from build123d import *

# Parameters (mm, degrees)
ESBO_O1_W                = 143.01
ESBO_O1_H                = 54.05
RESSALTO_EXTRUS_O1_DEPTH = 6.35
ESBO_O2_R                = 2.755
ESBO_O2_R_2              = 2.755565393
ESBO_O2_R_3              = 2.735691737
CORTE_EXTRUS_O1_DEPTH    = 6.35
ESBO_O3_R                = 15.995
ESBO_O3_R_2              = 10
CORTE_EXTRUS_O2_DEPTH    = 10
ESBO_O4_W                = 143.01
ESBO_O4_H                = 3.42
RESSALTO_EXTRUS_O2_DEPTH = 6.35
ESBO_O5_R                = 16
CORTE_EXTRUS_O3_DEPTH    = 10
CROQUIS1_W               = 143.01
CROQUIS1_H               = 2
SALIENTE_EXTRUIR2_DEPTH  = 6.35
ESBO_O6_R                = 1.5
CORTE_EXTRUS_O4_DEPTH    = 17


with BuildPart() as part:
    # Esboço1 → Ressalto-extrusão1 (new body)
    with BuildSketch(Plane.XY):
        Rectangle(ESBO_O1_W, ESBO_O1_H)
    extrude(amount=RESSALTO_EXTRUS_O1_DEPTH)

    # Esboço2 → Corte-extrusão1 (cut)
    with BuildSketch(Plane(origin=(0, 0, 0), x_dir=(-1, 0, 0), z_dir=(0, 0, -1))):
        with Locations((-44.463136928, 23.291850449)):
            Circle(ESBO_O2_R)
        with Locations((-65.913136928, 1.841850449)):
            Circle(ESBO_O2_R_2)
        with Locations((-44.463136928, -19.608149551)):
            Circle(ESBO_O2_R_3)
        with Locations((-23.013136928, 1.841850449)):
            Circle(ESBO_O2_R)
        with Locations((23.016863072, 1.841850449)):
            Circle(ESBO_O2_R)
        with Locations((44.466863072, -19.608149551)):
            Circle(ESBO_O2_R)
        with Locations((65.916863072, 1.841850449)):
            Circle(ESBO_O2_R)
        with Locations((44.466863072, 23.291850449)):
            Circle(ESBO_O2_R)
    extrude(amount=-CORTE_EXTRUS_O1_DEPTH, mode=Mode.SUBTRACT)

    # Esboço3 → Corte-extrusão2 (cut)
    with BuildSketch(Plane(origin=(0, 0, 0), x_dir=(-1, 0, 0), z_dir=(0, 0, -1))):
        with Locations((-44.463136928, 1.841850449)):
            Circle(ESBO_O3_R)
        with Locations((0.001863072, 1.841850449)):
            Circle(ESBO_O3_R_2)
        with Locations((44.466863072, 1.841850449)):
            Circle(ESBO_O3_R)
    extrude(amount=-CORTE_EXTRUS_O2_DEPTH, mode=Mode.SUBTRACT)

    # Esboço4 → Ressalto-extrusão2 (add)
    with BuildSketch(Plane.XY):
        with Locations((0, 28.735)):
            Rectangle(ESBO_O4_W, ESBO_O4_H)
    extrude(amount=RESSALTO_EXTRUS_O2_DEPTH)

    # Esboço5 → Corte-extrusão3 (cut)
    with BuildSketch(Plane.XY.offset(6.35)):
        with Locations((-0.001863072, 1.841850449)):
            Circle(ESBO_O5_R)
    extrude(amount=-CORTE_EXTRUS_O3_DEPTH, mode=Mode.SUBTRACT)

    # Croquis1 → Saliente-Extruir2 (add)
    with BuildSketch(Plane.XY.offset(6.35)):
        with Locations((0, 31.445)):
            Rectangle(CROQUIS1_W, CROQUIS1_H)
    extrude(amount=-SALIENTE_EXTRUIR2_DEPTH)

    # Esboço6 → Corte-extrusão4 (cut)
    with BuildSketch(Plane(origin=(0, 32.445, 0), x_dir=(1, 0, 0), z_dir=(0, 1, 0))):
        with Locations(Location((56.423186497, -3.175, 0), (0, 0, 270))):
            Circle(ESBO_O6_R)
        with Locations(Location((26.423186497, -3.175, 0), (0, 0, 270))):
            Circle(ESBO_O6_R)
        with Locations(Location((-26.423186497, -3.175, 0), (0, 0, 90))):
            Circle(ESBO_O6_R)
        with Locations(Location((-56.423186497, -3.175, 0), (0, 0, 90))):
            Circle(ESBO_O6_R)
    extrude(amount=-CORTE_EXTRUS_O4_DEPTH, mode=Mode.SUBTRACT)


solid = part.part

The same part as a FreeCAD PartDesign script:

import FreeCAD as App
import Part
import Sketcher
Q = App.Units.Quantity

doc = App.newDocument("Part")
body = doc.addObject("PartDesign::Body", "Body")

# Sketch on XY plane
sketch1 = doc.addObject("Sketcher::SketchObject", "Sketch")
body.addObject(sketch1)
sketch1.AttachmentSupport = (doc.XY_Plane, [""])
sketch1.MapMode = "FlatFace"
sketch1.addGeometry(Part.LineSegment(App.Vector(-72, 27, 0), App.Vector(-72, -27, 0)), False)
sketch1.addGeometry(Part.LineSegment(App.Vector(-72, -27, 0), App.Vector(72, -27, 0)), False)
sketch1.addGeometry(Part.LineSegment(App.Vector(72, -27, 0), App.Vector(72, 27, 0)), False)
sketch1.addGeometry(Part.LineSegment(App.Vector(72, 27, 0), App.Vector(-72, 27, 0)), False)
sketch1.addConstraint(Sketcher.Constraint("Coincident", 0, 2, 1, 1))
sketch1.addConstraint(Sketcher.Constraint("Coincident", 1, 2, 2, 1))
sketch1.addConstraint(Sketcher.Constraint("Coincident", 2, 2, 3, 1))
sketch1.addConstraint(Sketcher.Constraint("Coincident", 3, 2, 0, 1))
sketch1.addConstraint(Sketcher.Constraint("Vertical", 0))
sketch1.addConstraint(Sketcher.Constraint("Horizontal", 1))
sketch1.addConstraint(Sketcher.Constraint("Vertical", 2))
sketch1.addConstraint(Sketcher.Constraint("Horizontal", 3))
sketch1.addConstraint(Sketcher.Constraint("Symmetric", 0, 2, 2, 2, -1, 1))
sketch1.addConstraint(Sketcher.Constraint("DistanceX", 1, 1, 1, 2, Q("143.01 mm")))
sketch1.addConstraint(Sketcher.Constraint("DistanceY", 0, 2, 0, 1, Q("54.05 mm")))
pad1 = doc.addObject("PartDesign::Pad", "Pad")
body.addObject(pad1)
pad1.Profile = sketch1
pad1.Length = 6.35

# Sketch on XY plane
sketch2 = doc.addObject("Sketcher::SketchObject", "Sketch001")
body.addObject(sketch2)
sketch2.AttachmentSupport = (doc.XY_Plane, [""])
sketch2.MapMode = "FlatFace"
sketch2.addGeometry(Part.Circle(App.Vector(44.5, 23.3, 0), App.Vector(0, 0, 1), 2.8), False)
sketch2.addGeometry(Part.Circle(App.Vector(65.9, 1.8, 0), App.Vector(0, 0, 1), 2.8), False)
sketch2.addGeometry(Part.Circle(App.Vector(44.5, -19.6, 0), App.Vector(0, 0, 1), 2.7), False)
sketch2.addGeometry(Part.Circle(App.Vector(23, 1.8, 0), App.Vector(0, 0, 1), 2.8), False)
sketch2.addGeometry(Part.Circle(App.Vector(-23, 1.8, 0), App.Vector(0, 0, 1), 2.8), False)
sketch2.addGeometry(Part.Circle(App.Vector(-44.5, -19.6, 0), App.Vector(0, 0, 1), 2.8), False)
sketch2.addGeometry(Part.Circle(App.Vector(-65.9, 1.8, 0), App.Vector(0, 0, 1), 2.8), False)
sketch2.addGeometry(Part.Circle(App.Vector(-44.5, 23.3, 0), App.Vector(0, 0, 1), 2.8), False)
sketch2.addConstraint(Sketcher.Constraint("Equal", 0, 3))
sketch2.addConstraint(Sketcher.Constraint("Equal", 3, 4))
sketch2.addConstraint(Sketcher.Constraint("Equal", 4, 5))
sketch2.addConstraint(Sketcher.Constraint("Equal", 5, 6))
sketch2.addConstraint(Sketcher.Constraint("Equal", 6, 7))
sketch2.addConstraint(Sketcher.Constraint("Horizontal", 1, 3, 3, 3))
sketch2.addConstraint(Sketcher.Constraint("Horizontal", 3, 3, 4, 3))
sketch2.addConstraint(Sketcher.Constraint("Horizontal", 2, 3, 5, 3))
sketch2.addConstraint(Sketcher.Constraint("Horizontal", 4, 3, 6, 3))
sketch2.addConstraint(Sketcher.Constraint("Horizontal", 0, 3, 7, 3))
sketch2.addConstraint(Sketcher.Constraint("Vertical", 0, 3, 2, 3))
sketch2.addConstraint(Sketcher.Constraint("Vertical", 5, 3, 7, 3))
sketch2.addConstraint(Sketcher.Constraint("Diameter", 0, Q("5.51 mm")))
sketch2.addConstraint(Sketcher.Constraint("DistanceY", 2, 3, 0, 3, Q("42.9 mm")))
sketch2.addConstraint(Sketcher.Constraint("DistanceX", 3, 3, 1, 3, Q("42.9 mm")))
sketch2.addConstraint(Sketcher.Constraint("DistanceX", 6, 3, 4, 3, Q("42.9 mm")))
sketch2.addConstraint(Sketcher.Constraint("Diameter", 1, Q("5.511131 mm")))
sketch2.addConstraint(Sketcher.Constraint("DistanceX", 0, 3, 1, 3, Q("21.45 mm")))
sketch2.addConstraint(Sketcher.Constraint("DistanceY", 1, 3, 0, 3, Q("21.45 mm")))
sketch2.addConstraint(Sketcher.Constraint("DistanceX", 4, 3, 3, 3, Q("46.03 mm")))
sketch2.addConstraint(Sketcher.Constraint("DistanceX", 5, 3, 4, 3, Q("21.45 mm")))
sketch2.addConstraint(Sketcher.Constraint("Diameter", 2, Q("5.471383 mm")))
sketch2.addConstraint(Sketcher.Constraint("DistanceY", -1, 1, 0, 3, Q("23.29185 mm")))
sketch2.addConstraint(Sketcher.Constraint("DistanceX", -1, 1, 0, 3, Q("44.463137 mm")))
pocket1 = doc.addObject("PartDesign::Pocket", "Pocket")
body.addObject(pocket1)
pocket1.Profile = sketch2
pocket1.Length = 6.35
pocket1.Reversed = True

# Sketch on XY plane
sketch3 = doc.addObject("Sketcher::SketchObject", "Sketch002")
body.addObject(sketch3)
sketch3.AttachmentSupport = (doc.XY_Plane, [""])
sketch3.MapMode = "FlatFace"
sketch3.addGeometry(Part.Circle(App.Vector(44, 2, 0), App.Vector(0, 0, 1), 16), False)
sketch3.addGeometry(Part.Circle(App.Vector(0, 2, 0), App.Vector(0, 0, 1), 10), False)
sketch3.addGeometry(Part.Circle(App.Vector(-44, 2, 0), App.Vector(0, 0, 1), 16), False)
sketch3.addConstraint(Sketcher.Constraint("Equal", 0, 2))
sketch3.addConstraint(Sketcher.Constraint("Horizontal", 0, 3, 1, 3))
sketch3.addConstraint(Sketcher.Constraint("Horizontal", 1, 3, 2, 3))
sketch3.addConstraint(Sketcher.Constraint("Diameter", 1, Q("20 mm")))
sketch3.addConstraint(Sketcher.Constraint("Diameter", 0, Q("31.99 mm")))
sketch3.addConstraint(Sketcher.Constraint("DistanceX", 2, 3, 0, 3, Q("88.93 mm")))
sketch3.addConstraint(Sketcher.Constraint("DistanceX", 1, 3, 0, 3, Q("44.465 mm")))
sketch3.addConstraint(Sketcher.Constraint("DistanceY", -1, 1, 0, 3, Q("1.84185 mm")))
sketch3.addConstraint(Sketcher.Constraint("DistanceX", -1, 1, 0, 3, Q("44.463137 mm")))
pocket2 = doc.addObject("PartDesign::Pocket", "Pocket001")
body.addObject(pocket2)
pocket2.Profile = sketch3
pocket2.Length = 10
pocket2.Reversed = True

# Sketch on XY plane
sketch4 = doc.addObject("Sketcher::SketchObject", "Sketch003")
body.addObject(sketch4)
sketch4.AttachmentSupport = (doc.XY_Plane, [""])
sketch4.MapMode = "FlatFace"
sketch4.addGeometry(Part.LineSegment(App.Vector(-71.5, 30.4, 0), App.Vector(-71.5, 27, 0)), False)
sketch4.addGeometry(Part.LineSegment(App.Vector(-71.5, 27, 0), App.Vector(71.5, 27, 0)), False)
sketch4.addGeometry(Part.LineSegment(App.Vector(71.5, 27, 0), App.Vector(71.5, 30.4, 0)), False)
sketch4.addGeometry(Part.LineSegment(App.Vector(71.5, 30.4, 0), App.Vector(-71.5, 30.4, 0)), False)
sketch4.addConstraint(Sketcher.Constraint("Coincident", 0, 2, 1, 1))
sketch4.addConstraint(Sketcher.Constraint("Coincident", 1, 2, 2, 1))
sketch4.addConstraint(Sketcher.Constraint("Coincident", 2, 2, 3, 1))
sketch4.addConstraint(Sketcher.Constraint("Coincident", 3, 2, 0, 1))
sketch4.addConstraint(Sketcher.Constraint("Vertical", 0))
sketch4.addConstraint(Sketcher.Constraint("Horizontal", 1))
sketch4.addConstraint(Sketcher.Constraint("Vertical", 2))
sketch4.addConstraint(Sketcher.Constraint("Horizontal", 3))
sketch4.addConstraint(Sketcher.Constraint("DistanceX", 1, 1, 1, 2, Q("143.01 mm")))
sketch4.addConstraint(Sketcher.Constraint("DistanceY", 0, 2, 0, 1, Q("3.42 mm")))
sketch4.addConstraint(Sketcher.Constraint("DistanceX", 0, 2, -1, 1, Q("71.505 mm")))
sketch4.addConstraint(Sketcher.Constraint("DistanceY", -1, 1, 0, 2, Q("27.025 mm")))
pad2 = doc.addObject("PartDesign::Pad", "Pad001")
body.addObject(pad2)
pad2.Profile = sketch4
pad2.Length = 6.35

# Sketch on XY plane
sketch5 = doc.addObject("Sketcher::SketchObject", "Sketch004")
body.addObject(sketch5)
sketch5.AttachmentSupport = (doc.XY_Plane, [""])
sketch5.MapMode = "FlatFace"
sketch5.AttachmentOffset = App.Placement(App.Vector(0, 0, 6.35), App.Rotation())
sketch5.addGeometry(Part.Circle(App.Vector(0, 2, 0), App.Vector(0, 0, 1), 16), False)
sketch5.addConstraint(Sketcher.Constraint("Diameter", 0, Q("32 mm")))
sketch5.addConstraint(Sketcher.Constraint("DistanceY", -1, 1, 0, 3, Q("1.84185 mm")))
sketch5.addConstraint(Sketcher.Constraint("DistanceX", 0, 3, -1, 1, Q("0.001863 mm")))
pocket3 = doc.addObject("PartDesign::Pocket", "Pocket002")
body.addObject(pocket3)
pocket3.Profile = sketch5
pocket3.Length = 10

# Sketch on XY plane
sketch6 = doc.addObject("Sketcher::SketchObject", "Sketch005")
body.addObject(sketch6)
sketch6.AttachmentSupport = (doc.XY_Plane, [""])
sketch6.MapMode = "FlatFace"
sketch6.AttachmentOffset = App.Placement(App.Vector(0, 0, 6.35), App.Rotation())
sketch6.addGeometry(Part.LineSegment(App.Vector(-71.5, 32.4, 0), App.Vector(-71.5, 30.4, 0)), False)
sketch6.addGeometry(Part.LineSegment(App.Vector(-71.5, 30.4, 0), App.Vector(71.5, 30.4, 0)), False)
sketch6.addGeometry(Part.LineSegment(App.Vector(71.5, 30.4, 0), App.Vector(71.5, 32.4, 0)), False)
sketch6.addGeometry(Part.LineSegment(App.Vector(71.5, 32.4, 0), App.Vector(-71.5, 32.4, 0)), False)
sketch6.addConstraint(Sketcher.Constraint("Coincident", 0, 2, 1, 1))
sketch6.addConstraint(Sketcher.Constraint("Coincident", 1, 2, 2, 1))
sketch6.addConstraint(Sketcher.Constraint("Coincident", 2, 2, 3, 1))
sketch6.addConstraint(Sketcher.Constraint("Coincident", 3, 2, 0, 1))
sketch6.addConstraint(Sketcher.Constraint("Vertical", 0))
sketch6.addConstraint(Sketcher.Constraint("Horizontal", 1))
sketch6.addConstraint(Sketcher.Constraint("Vertical", 2))
sketch6.addConstraint(Sketcher.Constraint("Horizontal", 3))
sketch6.addConstraint(Sketcher.Constraint("DistanceY", 0, 2, 0, 1, Q("2 mm")))
sketch6.addConstraint(Sketcher.Constraint("DistanceX", 1, 1, 1, 2, Q("143.01 mm")))
sketch6.addConstraint(Sketcher.Constraint("DistanceX", 0, 2, -1, 1, Q("71.505 mm")))
sketch6.addConstraint(Sketcher.Constraint("DistanceY", -1, 1, 0, 2, Q("30.445 mm")))
pad3 = doc.addObject("PartDesign::Pad", "Pad002")
body.addObject(pad3)
pad3.Profile = sketch6
pad3.Length = 6.35
pad3.Reversed = True

# Sketch on XZ plane
sketch7 = doc.addObject("Sketcher::SketchObject", "Sketch006")
body.addObject(sketch7)
sketch7.AttachmentSupport = (doc.XZ_Plane, [""])
sketch7.MapMode = "FlatFace"
sketch7.AttachmentOffset = App.Placement(App.Vector(0, 0, -32.445), App.Rotation())
sketch7.addGeometry(Part.Circle(App.Vector(56.4, 3.2, 0), App.Vector(0, 0, 1), 1.5), False)
sketch7.addGeometry(Part.Circle(App.Vector(26.4, 3.2, 0), App.Vector(0, 0, 1), 1.5), False)
sketch7.addGeometry(Part.Circle(App.Vector(-26.4, 3.2, 0), App.Vector(0, 0, 1), 1.5), False)
sketch7.addGeometry(Part.Circle(App.Vector(-56.4, 3.2, 0), App.Vector(0, 0, 1), 1.5), False)
sketch7.addConstraint(Sketcher.Constraint("Equal", 0, 1))
sketch7.addConstraint(Sketcher.Constraint("Equal", 1, 2))
sketch7.addConstraint(Sketcher.Constraint("Equal", 2, 3))
sketch7.addConstraint(Sketcher.Constraint("Symmetric", 1, 3, 2, 3, -2))
sketch7.addConstraint(Sketcher.Constraint("Symmetric", 0, 3, 3, 3, -2))
sketch7.addConstraint(Sketcher.Constraint("Horizontal", 0, 3, 1, 3))
sketch7.addConstraint(Sketcher.Constraint("Diameter", 0, Q("3 mm")))
sketch7.addConstraint(Sketcher.Constraint("DistanceX", 1, 3, 0, 3, Q("30 mm")))
sketch7.addConstraint(Sketcher.Constraint("DistanceY", -1, 1, 0, 3, Q("3.175 mm")))
sketch7.addConstraint(Sketcher.Constraint("DistanceX", -1, 1, 0, 3, Q("56.423186 mm")))
pocket4 = doc.addObject("PartDesign::Pocket", "Pocket003")
body.addObject(pocket4)
pocket4.Profile = sketch7
pocket4.Length = 17
pocket4.Reversed = True

doc.recompute()
